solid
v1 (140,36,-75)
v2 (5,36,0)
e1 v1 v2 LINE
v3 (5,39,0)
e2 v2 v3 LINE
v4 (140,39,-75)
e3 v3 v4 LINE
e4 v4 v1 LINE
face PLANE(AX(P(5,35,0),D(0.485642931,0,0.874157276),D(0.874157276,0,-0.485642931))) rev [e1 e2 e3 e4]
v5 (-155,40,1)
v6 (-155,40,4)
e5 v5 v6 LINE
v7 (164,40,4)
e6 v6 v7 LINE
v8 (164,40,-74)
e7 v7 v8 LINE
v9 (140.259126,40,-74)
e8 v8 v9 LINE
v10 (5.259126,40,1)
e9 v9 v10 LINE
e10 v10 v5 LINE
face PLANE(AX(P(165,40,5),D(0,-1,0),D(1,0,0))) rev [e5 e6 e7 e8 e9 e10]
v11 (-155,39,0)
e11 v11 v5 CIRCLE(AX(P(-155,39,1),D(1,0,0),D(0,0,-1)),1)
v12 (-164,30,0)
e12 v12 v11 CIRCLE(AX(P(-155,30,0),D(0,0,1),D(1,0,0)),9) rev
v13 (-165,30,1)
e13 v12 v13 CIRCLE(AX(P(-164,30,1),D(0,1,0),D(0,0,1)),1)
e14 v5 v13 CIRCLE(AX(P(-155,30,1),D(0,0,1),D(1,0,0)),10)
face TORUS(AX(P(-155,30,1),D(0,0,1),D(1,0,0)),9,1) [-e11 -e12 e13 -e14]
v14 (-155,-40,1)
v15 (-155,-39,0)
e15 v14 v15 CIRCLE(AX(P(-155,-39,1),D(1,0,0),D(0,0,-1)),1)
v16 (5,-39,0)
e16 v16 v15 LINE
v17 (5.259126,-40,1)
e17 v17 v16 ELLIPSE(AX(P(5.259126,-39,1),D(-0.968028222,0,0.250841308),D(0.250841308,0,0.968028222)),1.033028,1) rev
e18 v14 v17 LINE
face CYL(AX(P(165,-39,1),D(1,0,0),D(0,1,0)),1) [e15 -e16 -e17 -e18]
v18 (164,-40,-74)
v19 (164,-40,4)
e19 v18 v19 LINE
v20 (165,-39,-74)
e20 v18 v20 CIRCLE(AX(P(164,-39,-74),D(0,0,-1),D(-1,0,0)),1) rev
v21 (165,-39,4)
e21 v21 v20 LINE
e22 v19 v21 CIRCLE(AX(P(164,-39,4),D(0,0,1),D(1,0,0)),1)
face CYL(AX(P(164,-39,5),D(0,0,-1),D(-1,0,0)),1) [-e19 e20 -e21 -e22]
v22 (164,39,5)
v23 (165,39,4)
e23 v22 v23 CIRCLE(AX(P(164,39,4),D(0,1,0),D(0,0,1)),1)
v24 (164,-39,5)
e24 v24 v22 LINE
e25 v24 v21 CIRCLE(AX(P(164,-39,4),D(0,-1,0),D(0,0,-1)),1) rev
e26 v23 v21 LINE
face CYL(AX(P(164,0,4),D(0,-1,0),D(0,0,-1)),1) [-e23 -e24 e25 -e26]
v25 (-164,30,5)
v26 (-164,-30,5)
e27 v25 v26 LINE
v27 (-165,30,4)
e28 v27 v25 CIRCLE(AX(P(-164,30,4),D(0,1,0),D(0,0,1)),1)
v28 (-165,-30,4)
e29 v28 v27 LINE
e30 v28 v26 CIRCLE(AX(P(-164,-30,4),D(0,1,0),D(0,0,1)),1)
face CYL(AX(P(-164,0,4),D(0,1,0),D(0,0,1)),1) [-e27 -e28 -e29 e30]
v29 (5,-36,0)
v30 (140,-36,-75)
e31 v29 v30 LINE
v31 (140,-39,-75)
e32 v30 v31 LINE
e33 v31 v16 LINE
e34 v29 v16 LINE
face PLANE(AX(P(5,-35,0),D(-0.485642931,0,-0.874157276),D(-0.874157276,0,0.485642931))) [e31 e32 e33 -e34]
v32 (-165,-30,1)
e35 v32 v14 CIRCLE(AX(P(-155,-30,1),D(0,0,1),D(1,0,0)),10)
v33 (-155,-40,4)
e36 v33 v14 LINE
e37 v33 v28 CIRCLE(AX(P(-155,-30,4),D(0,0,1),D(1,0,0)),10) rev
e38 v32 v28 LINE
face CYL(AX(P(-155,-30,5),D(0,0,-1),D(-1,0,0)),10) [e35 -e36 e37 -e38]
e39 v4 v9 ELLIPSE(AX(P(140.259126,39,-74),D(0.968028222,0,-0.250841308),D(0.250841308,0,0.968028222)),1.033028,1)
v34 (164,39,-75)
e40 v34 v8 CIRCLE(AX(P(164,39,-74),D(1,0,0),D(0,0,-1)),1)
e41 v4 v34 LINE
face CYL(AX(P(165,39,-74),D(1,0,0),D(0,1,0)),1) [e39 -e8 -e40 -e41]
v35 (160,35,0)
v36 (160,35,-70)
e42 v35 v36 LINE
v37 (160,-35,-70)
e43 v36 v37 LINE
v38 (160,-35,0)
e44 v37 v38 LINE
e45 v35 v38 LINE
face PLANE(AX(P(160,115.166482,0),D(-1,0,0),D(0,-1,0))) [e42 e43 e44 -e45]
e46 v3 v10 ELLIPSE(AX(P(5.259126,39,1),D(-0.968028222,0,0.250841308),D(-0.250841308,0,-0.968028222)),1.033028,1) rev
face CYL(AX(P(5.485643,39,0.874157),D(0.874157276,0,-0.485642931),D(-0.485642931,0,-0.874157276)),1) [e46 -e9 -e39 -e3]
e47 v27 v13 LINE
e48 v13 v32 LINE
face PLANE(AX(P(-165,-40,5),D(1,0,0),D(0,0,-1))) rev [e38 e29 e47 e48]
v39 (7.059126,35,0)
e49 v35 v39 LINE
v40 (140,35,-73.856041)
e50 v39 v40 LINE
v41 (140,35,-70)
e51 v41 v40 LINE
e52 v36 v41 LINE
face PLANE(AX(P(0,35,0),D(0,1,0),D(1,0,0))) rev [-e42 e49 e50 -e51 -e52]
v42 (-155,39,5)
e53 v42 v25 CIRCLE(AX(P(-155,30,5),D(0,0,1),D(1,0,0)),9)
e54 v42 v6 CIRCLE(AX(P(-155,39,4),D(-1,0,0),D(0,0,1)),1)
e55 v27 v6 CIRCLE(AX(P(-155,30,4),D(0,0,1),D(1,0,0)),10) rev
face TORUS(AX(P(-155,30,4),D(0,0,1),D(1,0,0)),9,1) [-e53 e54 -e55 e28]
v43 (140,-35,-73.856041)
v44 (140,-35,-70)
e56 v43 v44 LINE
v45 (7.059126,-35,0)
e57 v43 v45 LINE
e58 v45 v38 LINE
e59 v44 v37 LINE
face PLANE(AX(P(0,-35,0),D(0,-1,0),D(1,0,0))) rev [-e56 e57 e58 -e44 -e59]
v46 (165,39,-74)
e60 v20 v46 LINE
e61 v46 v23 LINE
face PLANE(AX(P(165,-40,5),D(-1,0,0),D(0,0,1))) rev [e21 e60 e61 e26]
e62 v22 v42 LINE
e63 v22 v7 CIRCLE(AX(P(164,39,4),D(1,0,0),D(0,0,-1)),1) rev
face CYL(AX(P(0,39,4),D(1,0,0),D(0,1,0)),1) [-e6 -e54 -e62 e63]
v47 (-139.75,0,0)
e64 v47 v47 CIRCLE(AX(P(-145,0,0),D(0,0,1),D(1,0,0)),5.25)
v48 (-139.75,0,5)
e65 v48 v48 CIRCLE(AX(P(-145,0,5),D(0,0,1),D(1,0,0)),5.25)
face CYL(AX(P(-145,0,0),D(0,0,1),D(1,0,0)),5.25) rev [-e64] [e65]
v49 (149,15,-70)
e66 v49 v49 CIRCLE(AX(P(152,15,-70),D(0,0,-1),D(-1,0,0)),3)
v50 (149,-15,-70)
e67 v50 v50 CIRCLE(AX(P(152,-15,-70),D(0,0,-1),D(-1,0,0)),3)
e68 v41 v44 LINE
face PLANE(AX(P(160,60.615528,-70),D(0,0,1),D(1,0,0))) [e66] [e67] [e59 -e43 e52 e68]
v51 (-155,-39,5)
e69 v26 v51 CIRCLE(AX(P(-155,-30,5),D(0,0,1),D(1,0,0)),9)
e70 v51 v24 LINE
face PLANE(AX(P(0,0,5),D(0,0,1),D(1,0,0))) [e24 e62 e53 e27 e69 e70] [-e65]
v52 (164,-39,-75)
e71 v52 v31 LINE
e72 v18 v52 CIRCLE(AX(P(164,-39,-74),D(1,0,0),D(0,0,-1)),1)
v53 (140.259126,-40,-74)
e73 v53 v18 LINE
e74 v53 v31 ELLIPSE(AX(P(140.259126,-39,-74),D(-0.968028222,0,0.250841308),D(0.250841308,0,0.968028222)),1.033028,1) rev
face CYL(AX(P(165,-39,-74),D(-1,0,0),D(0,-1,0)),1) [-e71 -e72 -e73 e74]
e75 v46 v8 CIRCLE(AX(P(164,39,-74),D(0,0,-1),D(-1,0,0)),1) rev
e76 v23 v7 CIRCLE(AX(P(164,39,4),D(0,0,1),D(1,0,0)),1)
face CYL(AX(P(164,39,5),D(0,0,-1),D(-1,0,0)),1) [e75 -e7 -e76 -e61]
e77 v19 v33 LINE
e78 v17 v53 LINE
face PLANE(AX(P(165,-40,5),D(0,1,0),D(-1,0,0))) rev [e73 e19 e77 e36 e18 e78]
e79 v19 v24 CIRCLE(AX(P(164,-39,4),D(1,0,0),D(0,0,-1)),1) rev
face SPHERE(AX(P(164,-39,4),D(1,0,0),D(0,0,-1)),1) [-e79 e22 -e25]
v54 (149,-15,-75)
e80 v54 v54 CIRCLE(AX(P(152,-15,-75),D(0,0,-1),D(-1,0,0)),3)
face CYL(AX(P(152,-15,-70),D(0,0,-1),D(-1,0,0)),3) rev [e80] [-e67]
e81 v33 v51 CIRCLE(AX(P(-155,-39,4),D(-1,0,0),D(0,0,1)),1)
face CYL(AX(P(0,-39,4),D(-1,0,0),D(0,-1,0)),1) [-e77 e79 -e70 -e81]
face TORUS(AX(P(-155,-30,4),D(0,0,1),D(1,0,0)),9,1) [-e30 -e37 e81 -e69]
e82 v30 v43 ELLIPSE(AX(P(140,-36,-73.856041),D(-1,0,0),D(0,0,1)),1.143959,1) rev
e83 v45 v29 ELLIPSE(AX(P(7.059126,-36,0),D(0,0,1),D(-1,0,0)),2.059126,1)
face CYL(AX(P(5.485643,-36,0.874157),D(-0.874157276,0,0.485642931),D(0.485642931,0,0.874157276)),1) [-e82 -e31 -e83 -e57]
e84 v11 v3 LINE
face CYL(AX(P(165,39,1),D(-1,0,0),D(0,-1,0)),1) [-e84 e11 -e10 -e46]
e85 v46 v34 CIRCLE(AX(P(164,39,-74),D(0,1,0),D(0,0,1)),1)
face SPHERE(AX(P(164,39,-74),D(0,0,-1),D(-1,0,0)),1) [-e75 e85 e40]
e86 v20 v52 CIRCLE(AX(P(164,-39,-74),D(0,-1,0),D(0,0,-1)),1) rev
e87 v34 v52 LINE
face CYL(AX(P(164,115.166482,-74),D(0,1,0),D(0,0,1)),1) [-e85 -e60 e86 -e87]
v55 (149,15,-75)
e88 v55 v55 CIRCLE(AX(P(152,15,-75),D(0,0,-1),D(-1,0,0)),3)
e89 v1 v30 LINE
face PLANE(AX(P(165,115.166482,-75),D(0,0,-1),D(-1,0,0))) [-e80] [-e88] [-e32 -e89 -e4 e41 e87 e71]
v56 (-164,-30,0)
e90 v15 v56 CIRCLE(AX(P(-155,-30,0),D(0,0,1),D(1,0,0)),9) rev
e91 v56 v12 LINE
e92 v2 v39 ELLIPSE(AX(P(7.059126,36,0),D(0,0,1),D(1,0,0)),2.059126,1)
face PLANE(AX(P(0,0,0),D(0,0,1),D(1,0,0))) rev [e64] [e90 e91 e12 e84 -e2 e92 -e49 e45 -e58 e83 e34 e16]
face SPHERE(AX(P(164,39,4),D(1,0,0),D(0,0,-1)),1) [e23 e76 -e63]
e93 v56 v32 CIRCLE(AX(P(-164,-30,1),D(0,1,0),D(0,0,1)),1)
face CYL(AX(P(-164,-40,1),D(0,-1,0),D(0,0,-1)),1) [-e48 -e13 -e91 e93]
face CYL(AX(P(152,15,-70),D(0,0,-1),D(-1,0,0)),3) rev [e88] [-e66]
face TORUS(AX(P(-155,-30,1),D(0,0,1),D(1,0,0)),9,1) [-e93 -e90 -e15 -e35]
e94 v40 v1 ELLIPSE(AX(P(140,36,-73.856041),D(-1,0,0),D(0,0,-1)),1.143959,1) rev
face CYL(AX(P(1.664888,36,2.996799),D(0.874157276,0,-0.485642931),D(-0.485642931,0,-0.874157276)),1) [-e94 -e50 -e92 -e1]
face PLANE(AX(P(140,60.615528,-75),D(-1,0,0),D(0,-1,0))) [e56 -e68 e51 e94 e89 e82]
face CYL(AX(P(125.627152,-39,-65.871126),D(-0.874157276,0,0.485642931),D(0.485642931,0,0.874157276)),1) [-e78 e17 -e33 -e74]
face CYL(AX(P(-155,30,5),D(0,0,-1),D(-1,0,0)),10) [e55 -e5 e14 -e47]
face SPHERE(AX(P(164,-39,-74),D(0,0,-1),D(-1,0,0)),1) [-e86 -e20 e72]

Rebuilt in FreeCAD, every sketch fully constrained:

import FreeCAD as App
import Part
import Sketcher


def edges_at(feature, points):
    """Names of the edges that pass closest to the given points."""
    edges = feature.Shape.Edges
    near = lambda p: min(range(len(edges)), key=lambda i: edges[i].distToShape(Part.Vertex(*p))[0])
    return sorted({f"Edge{near(p) + 1}" for p in points})


def add_polygon(sketch, points):
    """Adds a closed chain of lines whose ends are joined by coincident constraints."""
    first, n = sketch.GeometryCount, len(points)
    for a, b in zip(points, points[1:] + points[:1]):
        sketch.addGeometry(Part.LineSegment(App.Vector(*a, 0), App.Vector(*b, 0)), False)
    for i in range(n):
        sketch.addConstraint(Sketcher.Constraint("Coincident", first + i, 2, first + (i + 1) % n, 1))

doc = App.newDocument("Part")
body = doc.addObject("PartDesign::Body", "Body")

# Sketch on XY plane
sketch1 = body.newObject("Sketcher::SketchObject", "Sketch")
sketch1.AttachmentSupport = (doc.getObject("XY_Plane"), [""])
sketch1.MapMode = "FlatFace"
add_polygon(sketch1, [(-165, 40), (-165, -40), (165, -40), (165, 40)])  # lines 0-3
sketch1.addConstraint(Sketcher.Constraint("Vertical", 0))
sketch1.addConstraint(Sketcher.Constraint("Horizontal", 1))
sketch1.addConstraint(Sketcher.Constraint("Vertical", 2))
sketch1.addConstraint(Sketcher.Constraint("Horizontal", 3))
sketch1.addConstraint(Sketcher.Constraint("Symmetric", 0, 2, 2, 2, -1, 1))
sketch1.addConstraint(Sketcher.Constraint("DistanceX", 1, 1, 1, 2, 330.0))
sketch1.addConstraint(Sketcher.Constraint("DistanceY", 0, 2, 0, 1, 80.0))
pad1 = body.newObject("PartDesign::Pad", "Pad")
pad1.Profile = sketch1
pad1.Length = 5

# Sketch on XY plane
sketch2 = body.newObject("Sketcher::SketchObject", "Sketch001")
sketch2.AttachmentSupport = (doc.getObject("XY_Plane"), [""])
sketch2.MapMode = "FlatFace"
sketch2.AttachmentOffset = App.Placement(App.Vector(0, 0, 5), App.Rotation())
sketch2.addGeometry(Part.Circle(App.Vector(-145, 0, 0), App.Vector(0, 0, 1), 5), False)
sketch2.addConstraint(Sketcher.Constraint("PointOnObject", 0, 3, -1))
sketch2.addConstraint(Sketcher.Constraint("Diameter", 0, 10.5))
sketch2.addConstraint(Sketcher.Constraint("DistanceX", 0, 3, -1, 1, 145.0))
pocket1 = body.newObject("PartDesign::Pocket", "Pocket")
pocket1.Profile = sketch2
pocket1.Length = 5

# Sketch on XY plane
sketch3 = body.newObject("Sketcher::SketchObject", "Sketch002")
sketch3.AttachmentSupport = (doc.getObject("XY_Plane"), [""])
sketch3.MapMode = "FlatFace"
sketch3.AttachmentOffset = App.Placement(App.Vector(0, 0, 5), App.Rotation())
sketch3.addGeometry(Part.Circle(App.Vector(-45, 0, 0), App.Vector(0, 0, 1), 4), False)
sketch3.addConstraint(Sketcher.Constraint("PointOnObject", 0, 3, -1))
sketch3.addConstraint(Sketcher.Constraint("Diameter", 0, 8.0))
sketch3.addConstraint(Sketcher.Constraint("DistanceX", 0, 3, -1, 1, 45.0))
pocket2 = body.newObject("PartDesign::Pocket", "Pocket001")
pocket2.Profile = sketch3
pocket2.Length = 10
doc.recompute()

fillet = body.newObject("PartDesign::Fillet", "Fillet")
fillet.Base = (pocket2, edges_at(pocket2, [(-165, 40, 2.5), (-165, -40, 2.5)]))
fillet.Radius = 10

# Sketch on XY plane
sketch4 = body.newObject("Sketcher::SketchObject", "Sketch003")
sketch4.AttachmentSupport = (doc.getObject("XY_Plane"), [""])
sketch4.MapMode = "FlatFace"
sketch4.AttachmentOffset = App.Placement(App.Vector(0, 0, 5), App.Rotation())
sketch4.addGeometry(Part.Circle(App.Vector(-45, 0, 0), App.Vector(0, 0, 1), 7), False)
sketch4.addConstraint(Sketcher.Constraint("PointOnObject", 0, 3, -1))
sketch4.addConstraint(Sketcher.Constraint("DistanceX", 0, 3, -1, 1, 45.0))
sketch4.addConstraint(Sketcher.Constraint("Diameter", 0, 13.93877))
pad2 = body.newObject("PartDesign::Pad", "Pad001")
pad2.Profile = sketch4
pad2.Length = 5
pad2.Reversed = True

# Sketch on XZ plane
sketch5 = body.newObject("Sketcher::SketchObject", "Sketch004")
sketch5.AttachmentSupport = (doc.getObject("XZ_Plane"), [""])
sketch5.MapMode = "FlatFace"
sketch5.AttachmentOffset = App.Placement(App.Vector(0, 0, 40), App.Rotation())
add_polygon(sketch5, [(160, 0), (160, -75), (165, -75), (165, 0)])  # lines 0-3
sketch5.addConstraint(Sketcher.Constraint("Vertical", 0))
sketch5.addConstraint(Sketcher.Constraint("Horizontal", 1))
sketch5.addConstraint(Sketcher.Constraint("Vertical", 2))
sketch5.addConstraint(Sketcher.Constraint("Horizontal", 3))
sketch5.addConstraint(Sketcher.Constraint("PointOnObject", 2, 2, -1))
sketch5.addConstraint(Sketcher.Constraint("DistanceX", 1, 1, 1, 2, 5.0))
sketch5.addConstraint(Sketcher.Constraint("DistanceY", 0, 2, 0, 1, 75.0))
sketch5.addConstraint(Sketcher.Constraint("DistanceX", -1, 1, 0, 2, 160.0))
pad3 = body.newObject("PartDesign::Pad", "Pad002")
pad3.Profile = sketch5
pad3.Length = 80
pad3.Reversed = True

# Sketch on XZ plane
sketch6 = body.newObject("Sketcher::SketchObject", "Sketch005")
sketch6.AttachmentSupport = (doc.getObject("XZ_Plane"), [""])
sketch6.MapMode = "FlatFace"
sketch6.AttachmentOffset = App.Placement(App.Vector(0, 0, 40), App.Rotation())
add_polygon(sketch6, [(140, -70), (140, -75), (160, -75), (160, -70)])  # lines 0-3
sketch6.addConstraint(Sketcher.Constraint("Vertical", 0))
sketch6.addConstraint(Sketcher.Constraint("Horizontal", 1))
sketch6.addConstraint(Sketcher.Constraint("Vertical", 2))
sketch6.addConstraint(Sketcher.Constraint("Horizontal", 3))
sketch6.addConstraint(Sketcher.Constraint("DistanceX", 1, 1, 1, 2, 20.0))
sketch6.addConstraint(Sketcher.Constraint("DistanceY", 0, 2, 0, 1, 5.0))
sketch6.addConstraint(Sketcher.Constraint("DistanceX", -1, 1, 0, 2, 140.0))
sketch6.addConstraint(Sketcher.Constraint("DistanceY", 0, 2, -1, 1, 75.0))
pad4 = body.newObject("PartDesign::Pad", "Pad003")
pad4.Profile = sketch6
pad4.Length = 80
pad4.Reversed = True

# Sketch on XZ plane
sketch7 = body.newObject("Sketcher::SketchObject", "Sketch006")
sketch7.AttachmentSupport = (doc.getObject("XZ_Plane"), [""])
sketch7.MapMode = "FlatFace"
sketch7.AttachmentOffset = App.Placement(App.Vector(0, 0, 40), App.Rotation())
add_polygon(sketch7, [(5, 5), (5, 0), (140, -75), (165, -75), (165, 5)])  # lines 0-4
sketch7.addConstraint(Sketcher.Constraint("Vertical", 0))
sketch7.addConstraint(Sketcher.Constraint("Horizontal", 2))
sketch7.addConstraint(Sketcher.Constraint("Vertical", 3))
sketch7.addConstraint(Sketcher.Constraint("Horizontal", 4))
sketch7.addConstraint(Sketcher.Constraint("PointOnObject", 0, 2, -1))
sketch7.addConstraint(Sketcher.Constraint("DistanceX", 2, 1, 2, 2, 25.0))
sketch7.addConstraint(Sketcher.Constraint("DistanceX", 4, 2, 4, 1, 160.0))
sketch7.addConstraint(Sketcher.Constraint("DistanceY", 0, 2, 0, 1, 5.0))
sketch7.addConstraint(Sketcher.Constraint("DistanceY", 3, 1, 3, 2, 80.0))
sketch7.addConstraint(Sketcher.Constraint("DistanceX", -1, 1, 0, 2, 5.0))
pad5 = body.newObject("PartDesign::Pad", "Pad004")
pad5.Profile = sketch7
pad5.Length = 5
pad5.Reversed = True
doc.recompute()

mirrored = body.newObject("PartDesign::Mirrored", "Mirrored")
mirrored.Originals = [pad5]
mirrored.MirrorPlane = (doc.getObject("XZ_Plane"), [""])
body.Tip = mirrored

# Sketch on XY plane
sketch8 = body.newObject("Sketcher::SketchObject", "Sketch007")
sketch8.AttachmentSupport = (doc.getObject("XY_Plane"), [""])
sketch8.MapMode = "FlatFace"
sketch8.AttachmentOffset = App.Placement(App.Vector(0, 0, -75), App.Rotation())
sketch8.addGeometry(Part.Circle(App.Vector(152, -15, 0), App.Vector(0, 0, 1), 3), False)
sketch8.addGeometry(Part.Circle(App.Vector(152, 15, 0), App.Vector(0, 0, 1), 3), False)
sketch8.addConstraint(Sketcher.Constraint("Equal", 0, 1))
sketch8.addConstraint(Sketcher.Constraint("Symmetric", 0, 3, 1, 3, -1))
sketch8.addConstraint(Sketcher.Constraint("Diameter", 0, 6.0))
sketch8.addConstraint(Sketcher.Constraint("DistanceX", -1, 1, 0, 3, 152.0))
sketch8.addConstraint(Sketcher.Constraint("DistanceY", 0, 3, -1, 1, 15.0))
pocket3 = body.newObject("PartDesign::Pocket", "Pocket002")
pocket3.Profile = sketch8
pocket3.Length = 5
pocket3.Reversed = True
doc.recompute()

fillet2 = body.newObject("PartDesign::Fillet", "Fillet001")
fillet2.Base = (pocket3, edges_at(pocket3, [
    (72.5, 40, -37.5),
    (72.5, 35, -37.5),
    (165, 0, 5),
    (5, 40, 5),
    (-75, -40, 0),
    (5, -40, 5),
    (-165, 0, 0),
    (-162.071, 37.071, 0),
    (-162.071, -37.071, 0),
    (-165, 0, 5),
    (-162.071, 37.071, 5),
    (-162.071, -37.071, 5),
    (165, 0, -75),
    (152.5, -40, -75),
    (152.5, 40, -75),
    (72.5, -40, -37.5),
    (72.5, -35, -37.5),
    (165, 40, -35),
    (165, -40, -35),
    (-75, 40, 0),
]))
fillet2.Radius = 1

doc.recompute()
